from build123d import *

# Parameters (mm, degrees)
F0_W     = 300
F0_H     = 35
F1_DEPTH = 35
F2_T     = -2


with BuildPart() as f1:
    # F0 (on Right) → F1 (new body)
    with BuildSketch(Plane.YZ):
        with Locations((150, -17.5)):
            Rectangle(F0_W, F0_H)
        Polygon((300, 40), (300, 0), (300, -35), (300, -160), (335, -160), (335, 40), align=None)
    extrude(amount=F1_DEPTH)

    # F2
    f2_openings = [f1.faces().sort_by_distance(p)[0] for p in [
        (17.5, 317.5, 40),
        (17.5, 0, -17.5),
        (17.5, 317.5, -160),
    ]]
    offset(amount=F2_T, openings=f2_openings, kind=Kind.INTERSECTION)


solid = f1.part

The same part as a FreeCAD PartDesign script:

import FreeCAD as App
import Part
import Sketcher


def faces_at(feature, points):
    """Names of the faces that lie closest to the given points."""
    faces = feature.Shape.Faces
    near = lambda p: min(range(len(faces)), key=lambda i: faces[i].distToShape(Part.Vertex(*p))[0])
    return sorted({f"Face{near(p) + 1}" for p in points})


def add_polygon(sketch, points):
    """Adds a closed chain of lines whose ends are joined by coincident constraints."""
    first, n = sketch.GeometryCount, len(points)
    for a, b in zip(points, points[1:] + points[:1]):
        sketch.addGeometry(Part.LineSegment(App.Vector(*a, 0), App.Vector(*b, 0)), False)
    for i in range(n):
        sketch.addConstraint(Sketcher.Constraint("Coincident", first + i, 2, first + (i + 1) % n, 1))

doc = App.newDocument("Part")
body = doc.addObject("PartDesign::Body", "Body")

# Sketch on YZ plane
sketch1 = doc.addObject("Sketcher::SketchObject", "Sketch")
body.addObject(sketch1)
sketch1.AttachmentSupport = (doc.YZ_Plane, [""])
sketch1.MapMode = "FlatFace"
add_polygon(sketch1, [(0, 0), (0, -35), (300, -35), (300, -160), (335, -160), (335, 40), (300, 40), (300, 0)])  # lines 0-7
sketch1.addConstraint(Sketcher.Constraint("Vertical", 0))
sketch1.addConstraint(Sketcher.Constraint("Horizontal", 1))
sketch1.addConstraint(Sketcher.Constraint("Vertical", 2))
sketch1.addConstraint(Sketcher.Constraint("Horizontal", 3))
sketch1.addConstraint(Sketcher.Constraint("Vertical", 4))
sketch1.addConstraint(Sketcher.Constraint("Horizontal", 5))
sketch1.addConstraint(Sketcher.Constraint("Vertical", 6))
sketch1.addConstraint(Sketcher.Constraint("Horizontal", 7))
sketch1.addConstraint(Sketcher.Constraint("Coincident", 7, 2, -1, 1))
sketch1.addConstraint(Sketcher.Constraint("Vertical", 2, 2, 5, 2))
sketch1.addConstraint(Sketcher.Constraint("Equal", 5, 0))
sketch1.addConstraint(Sketcher.Constraint("DistanceX", 1, 1, 1, 2, 300.0))
sketch1.addConstraint(Sketcher.Constraint("DistanceX", 3, 1, 3, 2, 35.0))
sketch1.addConstraint(Sketcher.Constraint("DistanceY", 2, 2, 2, 1, 125.0))
sketch1.addConstraint(Sketcher.Constraint("DistanceY", 4, 1, 4, 2, 200.0))
pad1 = doc.addObject("PartDesign::Pad", "Pad")
body.addObject(pad1)
pad1.Profile = sketch1
pad1.Length = 35
doc.recompute()

thickness = doc.addObject("PartDesign::Thickness", "Thickness")
body.addObject(thickness)
thickness.Base = (pad1, faces_at(pad1, [(17.5, 317.5, 40), (17.5, 0, -17.5), (17.5, 317.5, -160)]))
thickness.Value = 2
thickness.Reversed = True
thickness.Join = "Intersection"

doc.recompute()
